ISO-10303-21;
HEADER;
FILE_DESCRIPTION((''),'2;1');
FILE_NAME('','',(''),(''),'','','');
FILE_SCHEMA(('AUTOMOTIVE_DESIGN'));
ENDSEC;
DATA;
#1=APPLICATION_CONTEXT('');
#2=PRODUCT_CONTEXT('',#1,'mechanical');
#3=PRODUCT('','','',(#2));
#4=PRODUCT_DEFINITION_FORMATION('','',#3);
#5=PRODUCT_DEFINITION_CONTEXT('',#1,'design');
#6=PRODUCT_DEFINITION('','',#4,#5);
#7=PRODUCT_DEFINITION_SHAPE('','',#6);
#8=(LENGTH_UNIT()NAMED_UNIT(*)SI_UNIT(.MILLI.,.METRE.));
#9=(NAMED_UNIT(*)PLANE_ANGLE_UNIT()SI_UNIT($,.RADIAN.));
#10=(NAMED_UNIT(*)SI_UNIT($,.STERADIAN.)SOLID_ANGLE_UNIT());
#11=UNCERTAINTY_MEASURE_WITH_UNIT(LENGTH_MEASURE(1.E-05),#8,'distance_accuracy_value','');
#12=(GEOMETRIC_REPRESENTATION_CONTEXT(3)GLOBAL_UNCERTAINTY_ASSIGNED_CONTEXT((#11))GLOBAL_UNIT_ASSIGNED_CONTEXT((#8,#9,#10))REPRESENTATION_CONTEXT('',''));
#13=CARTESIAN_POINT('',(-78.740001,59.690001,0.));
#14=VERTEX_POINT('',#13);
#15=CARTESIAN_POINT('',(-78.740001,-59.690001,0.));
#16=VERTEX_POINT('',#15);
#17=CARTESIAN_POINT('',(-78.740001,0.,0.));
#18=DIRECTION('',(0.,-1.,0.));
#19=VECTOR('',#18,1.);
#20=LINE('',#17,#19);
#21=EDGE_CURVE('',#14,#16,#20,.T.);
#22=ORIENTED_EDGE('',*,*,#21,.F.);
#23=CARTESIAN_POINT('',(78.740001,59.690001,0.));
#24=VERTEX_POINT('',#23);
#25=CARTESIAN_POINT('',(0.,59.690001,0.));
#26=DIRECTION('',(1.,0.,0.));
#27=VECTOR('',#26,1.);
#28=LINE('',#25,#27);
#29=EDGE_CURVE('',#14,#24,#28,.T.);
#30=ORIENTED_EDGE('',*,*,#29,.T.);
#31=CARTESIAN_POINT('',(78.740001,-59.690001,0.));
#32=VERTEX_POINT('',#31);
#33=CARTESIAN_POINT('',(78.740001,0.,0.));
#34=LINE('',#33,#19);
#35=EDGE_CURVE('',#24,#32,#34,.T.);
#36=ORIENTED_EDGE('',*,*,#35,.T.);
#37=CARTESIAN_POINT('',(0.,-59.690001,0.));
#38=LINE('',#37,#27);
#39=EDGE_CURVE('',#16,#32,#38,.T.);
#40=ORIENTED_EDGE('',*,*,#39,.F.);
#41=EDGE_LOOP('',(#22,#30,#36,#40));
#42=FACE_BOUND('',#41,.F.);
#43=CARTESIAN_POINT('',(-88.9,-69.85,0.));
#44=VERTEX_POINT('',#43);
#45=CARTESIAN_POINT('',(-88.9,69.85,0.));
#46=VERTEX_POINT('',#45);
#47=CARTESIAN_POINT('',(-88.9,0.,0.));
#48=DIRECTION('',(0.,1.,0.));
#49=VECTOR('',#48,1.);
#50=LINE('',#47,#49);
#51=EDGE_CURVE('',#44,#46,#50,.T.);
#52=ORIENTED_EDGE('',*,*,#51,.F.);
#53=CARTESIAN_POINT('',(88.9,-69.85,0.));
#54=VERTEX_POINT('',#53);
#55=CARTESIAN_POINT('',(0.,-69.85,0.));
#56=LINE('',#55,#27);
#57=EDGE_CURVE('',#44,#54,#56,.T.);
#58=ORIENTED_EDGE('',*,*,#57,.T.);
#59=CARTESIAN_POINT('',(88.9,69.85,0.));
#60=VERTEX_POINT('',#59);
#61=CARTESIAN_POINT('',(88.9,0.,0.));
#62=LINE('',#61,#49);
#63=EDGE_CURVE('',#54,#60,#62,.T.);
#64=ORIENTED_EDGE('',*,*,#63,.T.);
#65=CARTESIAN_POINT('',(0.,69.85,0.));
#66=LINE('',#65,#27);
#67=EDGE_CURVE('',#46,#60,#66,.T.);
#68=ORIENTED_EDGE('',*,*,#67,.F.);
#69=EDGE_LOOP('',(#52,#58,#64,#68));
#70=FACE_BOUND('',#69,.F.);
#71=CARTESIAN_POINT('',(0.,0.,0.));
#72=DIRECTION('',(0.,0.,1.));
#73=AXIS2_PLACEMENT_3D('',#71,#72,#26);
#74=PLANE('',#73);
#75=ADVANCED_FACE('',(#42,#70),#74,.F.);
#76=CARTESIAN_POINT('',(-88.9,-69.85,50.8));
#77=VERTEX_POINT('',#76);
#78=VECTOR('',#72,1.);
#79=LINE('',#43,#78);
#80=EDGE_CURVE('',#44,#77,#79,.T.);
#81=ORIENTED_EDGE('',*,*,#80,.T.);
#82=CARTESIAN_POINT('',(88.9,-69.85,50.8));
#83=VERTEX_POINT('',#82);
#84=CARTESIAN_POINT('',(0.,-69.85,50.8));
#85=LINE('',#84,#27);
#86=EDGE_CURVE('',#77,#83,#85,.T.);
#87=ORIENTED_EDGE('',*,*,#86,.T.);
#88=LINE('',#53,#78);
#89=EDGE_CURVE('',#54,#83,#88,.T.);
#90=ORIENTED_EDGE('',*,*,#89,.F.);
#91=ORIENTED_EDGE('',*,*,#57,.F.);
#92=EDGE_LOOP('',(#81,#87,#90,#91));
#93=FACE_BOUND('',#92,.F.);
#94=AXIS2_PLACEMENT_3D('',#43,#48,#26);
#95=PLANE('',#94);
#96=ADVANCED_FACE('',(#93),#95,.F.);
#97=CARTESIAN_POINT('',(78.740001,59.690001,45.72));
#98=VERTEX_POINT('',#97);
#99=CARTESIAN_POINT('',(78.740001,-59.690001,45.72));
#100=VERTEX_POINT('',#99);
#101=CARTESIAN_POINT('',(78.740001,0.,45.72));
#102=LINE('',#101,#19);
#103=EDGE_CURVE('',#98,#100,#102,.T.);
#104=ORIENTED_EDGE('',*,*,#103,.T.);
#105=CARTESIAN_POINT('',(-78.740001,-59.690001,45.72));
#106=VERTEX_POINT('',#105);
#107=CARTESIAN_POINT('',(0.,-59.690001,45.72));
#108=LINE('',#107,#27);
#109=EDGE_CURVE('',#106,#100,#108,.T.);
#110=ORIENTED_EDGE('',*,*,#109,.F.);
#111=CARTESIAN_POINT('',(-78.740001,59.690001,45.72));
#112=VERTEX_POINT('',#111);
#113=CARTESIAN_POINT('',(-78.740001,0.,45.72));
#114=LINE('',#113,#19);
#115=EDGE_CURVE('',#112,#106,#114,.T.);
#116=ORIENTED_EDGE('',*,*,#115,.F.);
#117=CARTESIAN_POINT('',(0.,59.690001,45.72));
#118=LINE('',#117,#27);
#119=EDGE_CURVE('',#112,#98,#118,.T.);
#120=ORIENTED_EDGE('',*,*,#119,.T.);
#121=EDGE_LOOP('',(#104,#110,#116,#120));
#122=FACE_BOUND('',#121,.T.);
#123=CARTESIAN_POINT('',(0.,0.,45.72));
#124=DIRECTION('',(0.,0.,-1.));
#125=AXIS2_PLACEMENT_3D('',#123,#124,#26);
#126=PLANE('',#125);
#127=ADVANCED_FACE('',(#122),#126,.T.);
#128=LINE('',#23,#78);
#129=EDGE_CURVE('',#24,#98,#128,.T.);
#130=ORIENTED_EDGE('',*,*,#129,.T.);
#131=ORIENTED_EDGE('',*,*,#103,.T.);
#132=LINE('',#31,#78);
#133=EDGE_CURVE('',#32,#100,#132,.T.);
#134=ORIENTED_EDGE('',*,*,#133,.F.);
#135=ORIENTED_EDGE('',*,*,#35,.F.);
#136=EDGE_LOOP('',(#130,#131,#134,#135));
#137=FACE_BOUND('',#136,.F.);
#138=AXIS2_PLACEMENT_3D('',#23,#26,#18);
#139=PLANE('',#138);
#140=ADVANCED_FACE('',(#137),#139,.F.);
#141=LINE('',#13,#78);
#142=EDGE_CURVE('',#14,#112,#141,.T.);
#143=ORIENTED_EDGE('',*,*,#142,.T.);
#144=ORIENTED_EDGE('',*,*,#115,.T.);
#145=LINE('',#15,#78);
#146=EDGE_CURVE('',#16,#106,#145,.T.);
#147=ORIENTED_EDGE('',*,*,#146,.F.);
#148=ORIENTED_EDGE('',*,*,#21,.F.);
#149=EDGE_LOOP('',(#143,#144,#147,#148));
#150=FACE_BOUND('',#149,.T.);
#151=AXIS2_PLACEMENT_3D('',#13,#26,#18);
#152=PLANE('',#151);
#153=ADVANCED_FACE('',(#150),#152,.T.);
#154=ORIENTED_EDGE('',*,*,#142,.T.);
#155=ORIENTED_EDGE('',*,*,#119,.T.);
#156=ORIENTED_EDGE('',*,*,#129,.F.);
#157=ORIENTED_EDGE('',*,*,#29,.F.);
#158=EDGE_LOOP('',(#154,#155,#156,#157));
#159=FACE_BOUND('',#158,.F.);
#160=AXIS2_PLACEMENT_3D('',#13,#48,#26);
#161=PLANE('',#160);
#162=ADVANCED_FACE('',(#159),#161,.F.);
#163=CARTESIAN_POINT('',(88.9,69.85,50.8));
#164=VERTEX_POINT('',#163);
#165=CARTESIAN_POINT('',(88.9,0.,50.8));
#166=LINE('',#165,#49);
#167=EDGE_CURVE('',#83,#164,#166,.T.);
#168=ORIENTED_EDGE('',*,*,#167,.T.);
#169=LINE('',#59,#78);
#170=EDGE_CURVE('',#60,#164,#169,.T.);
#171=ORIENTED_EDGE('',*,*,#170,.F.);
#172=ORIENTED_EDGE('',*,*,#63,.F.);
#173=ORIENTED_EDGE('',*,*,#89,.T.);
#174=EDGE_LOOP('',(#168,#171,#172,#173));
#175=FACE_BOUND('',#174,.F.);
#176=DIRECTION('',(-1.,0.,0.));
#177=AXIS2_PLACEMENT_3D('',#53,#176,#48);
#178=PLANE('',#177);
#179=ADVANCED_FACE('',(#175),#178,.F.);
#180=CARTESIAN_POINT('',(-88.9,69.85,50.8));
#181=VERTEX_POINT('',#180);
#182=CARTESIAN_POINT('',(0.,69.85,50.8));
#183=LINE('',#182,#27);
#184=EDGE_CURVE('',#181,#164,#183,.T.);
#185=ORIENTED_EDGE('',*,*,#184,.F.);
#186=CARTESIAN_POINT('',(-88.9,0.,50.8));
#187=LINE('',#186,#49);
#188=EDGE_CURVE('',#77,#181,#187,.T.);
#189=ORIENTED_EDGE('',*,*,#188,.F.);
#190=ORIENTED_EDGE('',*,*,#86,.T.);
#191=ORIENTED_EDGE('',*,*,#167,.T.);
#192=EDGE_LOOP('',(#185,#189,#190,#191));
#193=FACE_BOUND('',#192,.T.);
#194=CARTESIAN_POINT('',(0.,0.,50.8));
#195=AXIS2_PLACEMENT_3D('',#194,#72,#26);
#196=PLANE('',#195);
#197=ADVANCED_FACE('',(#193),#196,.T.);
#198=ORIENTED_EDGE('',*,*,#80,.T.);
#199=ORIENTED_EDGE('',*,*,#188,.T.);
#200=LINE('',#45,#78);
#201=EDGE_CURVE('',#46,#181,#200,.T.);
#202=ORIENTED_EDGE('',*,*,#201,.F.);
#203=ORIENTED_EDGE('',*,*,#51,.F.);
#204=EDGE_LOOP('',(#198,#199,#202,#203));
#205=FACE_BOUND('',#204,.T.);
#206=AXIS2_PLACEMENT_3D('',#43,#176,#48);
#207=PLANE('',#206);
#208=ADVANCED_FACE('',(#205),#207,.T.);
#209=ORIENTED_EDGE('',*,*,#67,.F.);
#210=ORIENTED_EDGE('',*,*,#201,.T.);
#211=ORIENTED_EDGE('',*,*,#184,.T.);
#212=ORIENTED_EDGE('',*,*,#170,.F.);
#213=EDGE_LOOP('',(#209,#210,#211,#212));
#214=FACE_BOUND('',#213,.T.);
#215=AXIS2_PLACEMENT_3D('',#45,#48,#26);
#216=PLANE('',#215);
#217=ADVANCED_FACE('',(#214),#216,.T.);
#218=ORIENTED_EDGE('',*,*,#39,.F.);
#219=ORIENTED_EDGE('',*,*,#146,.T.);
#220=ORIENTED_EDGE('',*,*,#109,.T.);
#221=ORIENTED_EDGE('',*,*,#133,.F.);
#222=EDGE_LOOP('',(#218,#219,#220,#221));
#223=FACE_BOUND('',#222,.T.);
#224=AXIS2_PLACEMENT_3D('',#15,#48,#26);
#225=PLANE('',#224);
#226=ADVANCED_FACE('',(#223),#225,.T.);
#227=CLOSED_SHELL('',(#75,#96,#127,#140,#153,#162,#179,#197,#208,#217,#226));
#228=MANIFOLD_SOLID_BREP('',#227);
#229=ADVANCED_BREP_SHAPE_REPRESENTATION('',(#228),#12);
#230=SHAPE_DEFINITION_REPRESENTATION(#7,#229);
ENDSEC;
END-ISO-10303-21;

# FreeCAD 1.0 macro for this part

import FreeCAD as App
import Part
import Sketcher
Q = App.Units.Quantity

doc = App.newDocument("Part")
body = doc.addObject("PartDesign::Body", "Body")

# Sketch on XY plane
sketch1 = body.newObject("Sketcher::SketchObject", "Sketch")
sketch1.AttachmentSupport = (doc.getObject("XY_Plane"), [""])
sketch1.MapMode = "FlatFace"
sketch1.addGeometry([
    Part.LineSegment(App.Vector(-89, 70, 0), App.Vector(-89, -70, 0)),
    Part.LineSegment(App.Vector(-89, -70, 0), App.Vector(89, -70, 0)),
    Part.LineSegment(App.Vector(89, -70, 0), App.Vector(89, 70, 0)),
    Part.LineSegment(App.Vector(89, 70, 0), App.Vector(-89, 70, 0)),
], False)
sketch1.addConstraint([
    Sketcher.Constraint("Coincident", 0, 2, 1, 1),
    Sketcher.Constraint("Coincident", 1, 2, 2, 1),
    Sketcher.Constraint("Coincident", 2, 2, 3, 1),
    Sketcher.Constraint("Coincident", 3, 2, 0, 1),
    Sketcher.Constraint("Vertical", 0),
    Sketcher.Constraint("Horizontal", 1),
    Sketcher.Constraint("Vertical", 2),
    Sketcher.Constraint("Horizontal", 3),
    Sketcher.Constraint("Symmetric", 0, 2, 2, 2, -1, 1),
    Sketcher.Constraint("DistanceX", 1, 1, 1, 2, Q("7 in")),
    Sketcher.Constraint("DistanceY", 0, 2, 0, 1, Q("5.5 in")),
])
pad1 = body.newObject("PartDesign::Pad", "Pad")
pad1.Profile = sketch1
pad1.Length = Q("2 in")

# Sketch on XY plane
sketch2 = body.newObject("Sketcher::SketchObject", "Sketch001")
sketch2.AttachmentSupport = (doc.getObject("XY_Plane"), [""])
sketch2.MapMode = "FlatFace"
sketch2.addGeometry([
    Part.LineSegment(App.Vector(-79, -60, 0), App.Vector(-79, 60, 0)),
    Part.LineSegment(App.Vector(-79, 60, 0), App.Vector(79, 60, 0)),
    Part.LineSegment(App.Vector(79, 60, 0), App.Vector(79, -60, 0)),
    Part.LineSegment(App.Vector(79, -60, 0), App.Vector(-79, -60, 0)),
], False)
sketch2.addConstraint([
    Sketcher.Constraint("Coincident", 0, 2, 1, 1),
    Sketcher.Constraint("Coincident", 1, 2, 2, 1),
    Sketcher.Constraint("Coincident", 2, 2, 3, 1),
    Sketcher.Constraint("Coincident", 3, 2, 0, 1),
    Sketcher.Constraint("Vertical", 0),
    Sketcher.Constraint("Horizontal", 1),
    Sketcher.Constraint("Vertical", 2),
    Sketcher.Constraint("Horizontal", 3),
    Sketcher.Constraint("Symmetric", 0, 2, 2, 2, -1, 1),
    Sketcher.Constraint("DistanceX", 1, 1, 1, 2, Q("6.2000001 in")),
    Sketcher.Constraint("DistanceY", 0, 1, 0, 2, Q("4.7000001 in")),
])
pocket1 = body.newObject("PartDesign::Pocket", "Pocket")
pocket1.Profile = sketch2
pocket1.Length = Q("1.8 in")
pocket1.Reversed = True

doc.recompute()
